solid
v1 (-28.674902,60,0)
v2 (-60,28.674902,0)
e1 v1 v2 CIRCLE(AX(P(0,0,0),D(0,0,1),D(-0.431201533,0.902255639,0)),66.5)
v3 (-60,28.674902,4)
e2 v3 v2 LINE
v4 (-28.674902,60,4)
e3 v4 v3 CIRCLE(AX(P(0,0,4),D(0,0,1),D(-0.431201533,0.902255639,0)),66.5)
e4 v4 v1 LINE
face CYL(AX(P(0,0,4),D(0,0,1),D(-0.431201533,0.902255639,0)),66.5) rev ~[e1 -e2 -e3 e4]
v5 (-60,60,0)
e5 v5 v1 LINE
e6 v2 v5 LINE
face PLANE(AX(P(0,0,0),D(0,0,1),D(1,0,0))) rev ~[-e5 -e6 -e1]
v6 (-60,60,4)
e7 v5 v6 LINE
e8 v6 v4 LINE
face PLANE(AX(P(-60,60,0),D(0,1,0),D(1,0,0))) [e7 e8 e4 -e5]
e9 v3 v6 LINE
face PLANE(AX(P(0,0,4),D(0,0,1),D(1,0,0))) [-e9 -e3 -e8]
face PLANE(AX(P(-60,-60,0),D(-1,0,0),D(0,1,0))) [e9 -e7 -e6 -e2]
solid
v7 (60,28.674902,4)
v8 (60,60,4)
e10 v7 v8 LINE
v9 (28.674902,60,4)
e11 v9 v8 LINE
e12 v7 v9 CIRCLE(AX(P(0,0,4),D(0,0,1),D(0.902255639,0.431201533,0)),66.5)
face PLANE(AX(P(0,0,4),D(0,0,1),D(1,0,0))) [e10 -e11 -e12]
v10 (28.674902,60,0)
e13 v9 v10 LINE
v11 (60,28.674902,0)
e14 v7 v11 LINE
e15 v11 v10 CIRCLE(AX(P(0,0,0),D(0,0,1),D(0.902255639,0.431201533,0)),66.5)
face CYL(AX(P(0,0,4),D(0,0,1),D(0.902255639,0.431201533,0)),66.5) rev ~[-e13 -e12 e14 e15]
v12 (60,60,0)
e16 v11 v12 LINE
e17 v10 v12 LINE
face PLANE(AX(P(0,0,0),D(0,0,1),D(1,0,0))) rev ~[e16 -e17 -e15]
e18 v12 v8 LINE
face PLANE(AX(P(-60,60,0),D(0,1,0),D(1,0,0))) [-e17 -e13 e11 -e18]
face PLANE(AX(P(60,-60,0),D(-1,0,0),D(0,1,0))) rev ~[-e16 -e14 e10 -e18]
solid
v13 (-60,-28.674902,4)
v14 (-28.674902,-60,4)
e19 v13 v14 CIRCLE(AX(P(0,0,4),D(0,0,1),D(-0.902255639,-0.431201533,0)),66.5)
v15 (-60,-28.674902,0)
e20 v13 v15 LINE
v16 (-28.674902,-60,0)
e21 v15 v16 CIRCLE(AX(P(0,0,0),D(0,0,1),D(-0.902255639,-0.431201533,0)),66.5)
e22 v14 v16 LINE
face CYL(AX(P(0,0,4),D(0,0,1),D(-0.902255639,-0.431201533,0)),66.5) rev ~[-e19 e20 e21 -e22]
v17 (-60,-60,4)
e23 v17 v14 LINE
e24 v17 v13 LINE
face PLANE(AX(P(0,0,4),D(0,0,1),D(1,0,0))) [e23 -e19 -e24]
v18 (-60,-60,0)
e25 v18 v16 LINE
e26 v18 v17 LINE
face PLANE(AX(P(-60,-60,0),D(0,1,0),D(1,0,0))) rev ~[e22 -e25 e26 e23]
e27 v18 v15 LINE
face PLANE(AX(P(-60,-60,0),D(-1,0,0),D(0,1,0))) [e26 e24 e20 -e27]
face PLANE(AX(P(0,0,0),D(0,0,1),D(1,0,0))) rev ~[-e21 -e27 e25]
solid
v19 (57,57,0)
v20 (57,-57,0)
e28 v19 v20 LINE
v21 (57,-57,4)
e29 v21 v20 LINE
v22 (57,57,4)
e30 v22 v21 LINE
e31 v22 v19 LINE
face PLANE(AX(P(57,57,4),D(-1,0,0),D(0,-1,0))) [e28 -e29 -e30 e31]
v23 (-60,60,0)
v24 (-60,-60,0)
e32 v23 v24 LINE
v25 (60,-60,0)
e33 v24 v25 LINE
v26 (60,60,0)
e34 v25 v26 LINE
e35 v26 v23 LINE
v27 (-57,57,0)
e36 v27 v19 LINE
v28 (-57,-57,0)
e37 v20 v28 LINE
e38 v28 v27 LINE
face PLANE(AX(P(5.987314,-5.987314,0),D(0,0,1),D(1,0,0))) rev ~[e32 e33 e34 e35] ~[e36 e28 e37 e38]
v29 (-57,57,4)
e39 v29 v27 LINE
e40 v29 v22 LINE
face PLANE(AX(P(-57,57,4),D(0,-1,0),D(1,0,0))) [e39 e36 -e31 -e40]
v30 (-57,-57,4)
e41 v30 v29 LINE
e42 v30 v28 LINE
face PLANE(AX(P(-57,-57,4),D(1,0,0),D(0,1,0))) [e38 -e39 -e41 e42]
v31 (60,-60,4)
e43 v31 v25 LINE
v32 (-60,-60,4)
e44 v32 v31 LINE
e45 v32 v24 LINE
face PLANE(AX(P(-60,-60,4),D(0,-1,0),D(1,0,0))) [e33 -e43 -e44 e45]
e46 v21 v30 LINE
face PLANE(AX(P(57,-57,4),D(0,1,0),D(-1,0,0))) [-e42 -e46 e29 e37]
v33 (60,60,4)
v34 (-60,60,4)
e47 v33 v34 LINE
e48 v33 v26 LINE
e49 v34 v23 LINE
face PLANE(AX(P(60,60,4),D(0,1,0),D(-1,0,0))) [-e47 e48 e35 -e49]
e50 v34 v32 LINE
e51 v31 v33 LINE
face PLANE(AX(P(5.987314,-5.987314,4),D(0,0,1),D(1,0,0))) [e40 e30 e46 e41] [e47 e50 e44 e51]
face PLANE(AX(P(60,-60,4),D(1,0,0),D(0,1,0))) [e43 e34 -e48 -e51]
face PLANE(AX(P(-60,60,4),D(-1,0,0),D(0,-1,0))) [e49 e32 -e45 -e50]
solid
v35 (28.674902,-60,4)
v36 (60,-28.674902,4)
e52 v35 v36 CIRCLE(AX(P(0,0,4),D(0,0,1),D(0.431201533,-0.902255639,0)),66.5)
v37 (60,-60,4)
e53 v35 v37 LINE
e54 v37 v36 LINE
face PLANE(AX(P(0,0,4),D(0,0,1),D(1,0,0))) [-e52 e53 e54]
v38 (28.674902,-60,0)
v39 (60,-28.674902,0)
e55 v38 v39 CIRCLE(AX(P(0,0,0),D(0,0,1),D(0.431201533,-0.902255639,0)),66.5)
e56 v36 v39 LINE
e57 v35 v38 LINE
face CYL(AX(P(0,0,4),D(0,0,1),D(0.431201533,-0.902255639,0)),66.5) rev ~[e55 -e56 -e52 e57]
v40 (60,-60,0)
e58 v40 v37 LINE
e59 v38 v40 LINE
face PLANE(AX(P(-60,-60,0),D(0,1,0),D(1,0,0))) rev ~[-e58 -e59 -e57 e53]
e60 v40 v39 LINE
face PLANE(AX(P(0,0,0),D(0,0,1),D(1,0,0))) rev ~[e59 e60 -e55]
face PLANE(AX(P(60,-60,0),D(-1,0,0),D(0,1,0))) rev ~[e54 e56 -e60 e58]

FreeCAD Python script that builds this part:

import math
import FreeCAD as App
import Part
import Sketcher

V = App.Vector

doc = App.newDocument("Part")
params = doc.addObject("Spreadsheet::Sheet", "Params")
for row, (alias, value) in enumerate([
    ("sketch1_width", "120 mm"),
    ("pad1_length", "4 mm"),
    ("sketch2_radius", "66.5 mm"),
    ("pocket1_length", "25 mm"),
    ("sketch3_width", "120 mm"),
    ("sketch3_width2", "114 mm"),
    ("pad2_length", "4 mm"),
], start=1):
    params.set(f"A{row}", alias)
    params.set(f"B{row}", "=" + value)
    params.setAlias(f"B{row}", alias)

body = doc.addObject("PartDesign::Body", "Body")
body.AllowCompound = True

# Sketch on XY plane
sketch1 = body.newObject("Sketcher::SketchObject", "Sketch")
sketch1.AttachmentSupport = (doc.getObject("XY_Plane"), [""])
sketch1.MapMode = "FlatFace"
sketch1.addGeometry([
    Part.LineSegment(V(-60, 60, 0), V(-60, -60, 0)),
    Part.LineSegment(V(-60, -60, 0), V(60, -60, 0)),
    Part.LineSegment(V(60, -60, 0), V(60, 60, 0)),
    Part.LineSegment(V(60, 60, 0), V(-60, 60, 0)),
], False)
sketch1.addConstraint([
    Sketcher.Constraint("Coincident", 0, 2, 1, 1),
    Sketcher.Constraint("Coincident", 1, 2, 2, 1),
    Sketcher.Constraint("Coincident", 2, 2, 3, 1),
    Sketcher.Constraint("Coincident", 3, 2, 0, 1),
    Sketcher.Constraint("Vertical", 0),
    Sketcher.Constraint("Horizontal", 1),
    Sketcher.Constraint("Vertical", 2),
    Sketcher.Constraint("Horizontal", 3),
    Sketcher.Constraint("Symmetric", 0, 2, 2, 2, -1, 1),
    Sketcher.Constraint("Equal", 3, 0),
    Sketcher.Constraint("DistanceX", 1, 1, 1, 2, 120.0),
])
sketch1.setExpression("Constraints[10]", "Params.sketch1_width")
pad1 = body.newObject("PartDesign::Pad", "Pad")
pad1.Profile = sketch1
pad1.setExpression("Length", "Params.pad1_length")

# Sketch on XY plane
sketch2 = body.newObject("Sketcher::SketchObject", "Sketch001")
sketch2.AttachmentSupport = (doc.getObject("XY_Plane"), [""])
sketch2.MapMode = "FlatFace"
sketch2.AttachmentOffset = App.Placement(V(0, 0, 4), App.Rotation())
sketch2.addGeometry([
    Part.LineSegment(V(60, -29, 0), V(60, 29, 0)),  # 0
    Part.ArcOfCircle(Part.Circle(V(0, 0, 0), V(0, 0, 1), 66), math.radians(26), math.radians(64)),  # 1
    Part.LineSegment(V(29, 60, 0), V(-29, 60, 0)),  # 2
    Part.ArcOfCircle(Part.Circle(V(0, 0, 0), V(0, 0, 1), 66), math.radians(116), math.radians(154)),  # 3
    Part.LineSegment(V(-60, 29, 0), V(-60, -29, 0)),  # 4
    Part.ArcOfCircle(Part.Circle(V(0, 0, 0), V(0, 0, 1), 66), math.radians(-154), math.radians(-116)),  # 5
    Part.LineSegment(V(-29, -60, 0), V(29, -60, 0)),  # 6
    Part.ArcOfCircle(Part.Circle(V(0, 0, 0), V(0, 0, 1), 66), math.radians(-64), math.radians(-26)),  # 7
], False)
sketch2.addConstraint([
    Sketcher.Constraint("Coincident", 0, 2, 1, 1),
    Sketcher.Constraint("Coincident", 1, 2, 2, 1),
    Sketcher.Constraint("Coincident", 2, 2, 3, 1),
    Sketcher.Constraint("Coincident", 3, 2, 4, 1),
    Sketcher.Constraint("Coincident", 4, 2, 5, 1),
    Sketcher.Constraint("Coincident", 5, 2, 6, 1),
    Sketcher.Constraint("Coincident", 6, 2, 7, 1),
    Sketcher.Constraint("Coincident", 7, 2, 0, 1),
    Sketcher.Constraint("Vertical", 0),
    Sketcher.Constraint("Horizontal", 2),
    Sketcher.Constraint("Vertical", 4),
    Sketcher.Constraint("Horizontal", 6),
    Sketcher.Constraint("Coincident", 1, 3, -1, 1),
    Sketcher.Constraint("Coincident", 3, 3, -1, 1),
    Sketcher.Constraint("Coincident", 5, 3, -1, 1),
    Sketcher.Constraint("Coincident", 7, 3, -1, 1),
    Sketcher.Constraint("Equal", 1, 3),
    Sketcher.Constraint("Equal", 3, 5),
    Sketcher.Constraint("Equal", 5, 7),
    Sketcher.Constraint("Horizontal", 0, 2, 3, 2),
    Sketcher.Constraint("Vertical", 2, 2, 5, 2),
    Sketcher.Constraint("Equal", 6, 0),
    Sketcher.Constraint("Radius", 1, 66.5),
    Sketcher.Constraint("DistanceX", -1, 1, 0, 2, 60.0),
])
sketch2.setExpression("Constraints[22]", "Params.sketch2_radius")
pocket1 = body.newObject("PartDesign::Pocket", "Pocket")
pocket1.Profile = sketch2
pocket1.setExpression("Length", "Params.pocket1_length")
body2 = doc.addObject("PartDesign::Body", "Body001")

# Sketch on XY plane
sketch3 = body2.newObject("Sketcher::SketchObject", "Sketch002")
sketch3.AttachmentSupport = (doc.getObject("XY_Plane001"), [""])
sketch3.MapMode = "FlatFace"
sketch3.AttachmentOffset = App.Placement(V(0, 0, 4), App.Rotation())
sketch3.addGeometry([
    Part.LineSegment(V(60, 60, 0), V(-60, 60, 0)),  # 0
    Part.LineSegment(V(-60, 60, 0), V(-60, -60, 0)),  # 1
    Part.LineSegment(V(-60, -60, 0), V(60, -60, 0)),  # 2
    Part.LineSegment(V(60, -60, 0), V(60, 60, 0)),  # 3
    Part.LineSegment(V(57, 57, 0), V(57, -57, 0)),  # 4
    Part.LineSegment(V(57, -57, 0), V(-57, -57, 0)),  # 5
    Part.LineSegment(V(-57, -57, 0), V(-57, 57, 0)),  # 6
    Part.LineSegment(V(-57, 57, 0), V(57, 57, 0)),  # 7
], False)
sketch3.addConstraint([
    Sketcher.Constraint("Coincident", 0, 2, 1, 1),
    Sketcher.Constraint("Coincident", 1, 2, 2, 1),
    Sketcher.Constraint("Coincident", 2, 2, 3, 1),
    Sketcher.Constraint("Coincident", 3, 2, 0, 1),
    Sketcher.Constraint("Coincident", 4, 2, 5, 1),
    Sketcher.Constraint("Coincident", 5, 2, 6, 1),
    Sketcher.Constraint("Coincident", 6, 2, 7, 1),
    Sketcher.Constraint("Coincident", 7, 2, 4, 1),
    Sketcher.Constraint("Horizontal", 0),
    Sketcher.Constraint("Vertical", 1),
    Sketcher.Constraint("Horizontal", 2),
    Sketcher.Constraint("Vertical", 3),
    Sketcher.Constraint("Vertical", 4),
    Sketcher.Constraint("Horizontal", 5),
    Sketcher.Constraint("Vertical", 6),
    Sketcher.Constraint("Horizontal", 7),
    Sketcher.Constraint("Symmetric", 0, 2, 2, 2, -1, 1),
    Sketcher.Constraint("Symmetric", 4, 2, 6, 2, -1, 1),
    Sketcher.Constraint("Equal", 2, 1),
    Sketcher.Constraint("Equal", 7, 4),
    Sketcher.Constraint("DistanceX", 0, 2, 0, 1, 120.0),
    Sketcher.Constraint("DistanceX", 5, 2, 5, 1, 114.0),
])
sketch3.setExpression("Constraints[20]", "Params.sketch3_width")
sketch3.setExpression("Constraints[21]", "Params.sketch3_width2")
pad2 = body2.newObject("PartDesign::Pad", "Pad001")
pad2.Profile = sketch3
pad2.setExpression("Length", "Params.pad2_length")
pad2.Reversed = True

doc.recompute()
